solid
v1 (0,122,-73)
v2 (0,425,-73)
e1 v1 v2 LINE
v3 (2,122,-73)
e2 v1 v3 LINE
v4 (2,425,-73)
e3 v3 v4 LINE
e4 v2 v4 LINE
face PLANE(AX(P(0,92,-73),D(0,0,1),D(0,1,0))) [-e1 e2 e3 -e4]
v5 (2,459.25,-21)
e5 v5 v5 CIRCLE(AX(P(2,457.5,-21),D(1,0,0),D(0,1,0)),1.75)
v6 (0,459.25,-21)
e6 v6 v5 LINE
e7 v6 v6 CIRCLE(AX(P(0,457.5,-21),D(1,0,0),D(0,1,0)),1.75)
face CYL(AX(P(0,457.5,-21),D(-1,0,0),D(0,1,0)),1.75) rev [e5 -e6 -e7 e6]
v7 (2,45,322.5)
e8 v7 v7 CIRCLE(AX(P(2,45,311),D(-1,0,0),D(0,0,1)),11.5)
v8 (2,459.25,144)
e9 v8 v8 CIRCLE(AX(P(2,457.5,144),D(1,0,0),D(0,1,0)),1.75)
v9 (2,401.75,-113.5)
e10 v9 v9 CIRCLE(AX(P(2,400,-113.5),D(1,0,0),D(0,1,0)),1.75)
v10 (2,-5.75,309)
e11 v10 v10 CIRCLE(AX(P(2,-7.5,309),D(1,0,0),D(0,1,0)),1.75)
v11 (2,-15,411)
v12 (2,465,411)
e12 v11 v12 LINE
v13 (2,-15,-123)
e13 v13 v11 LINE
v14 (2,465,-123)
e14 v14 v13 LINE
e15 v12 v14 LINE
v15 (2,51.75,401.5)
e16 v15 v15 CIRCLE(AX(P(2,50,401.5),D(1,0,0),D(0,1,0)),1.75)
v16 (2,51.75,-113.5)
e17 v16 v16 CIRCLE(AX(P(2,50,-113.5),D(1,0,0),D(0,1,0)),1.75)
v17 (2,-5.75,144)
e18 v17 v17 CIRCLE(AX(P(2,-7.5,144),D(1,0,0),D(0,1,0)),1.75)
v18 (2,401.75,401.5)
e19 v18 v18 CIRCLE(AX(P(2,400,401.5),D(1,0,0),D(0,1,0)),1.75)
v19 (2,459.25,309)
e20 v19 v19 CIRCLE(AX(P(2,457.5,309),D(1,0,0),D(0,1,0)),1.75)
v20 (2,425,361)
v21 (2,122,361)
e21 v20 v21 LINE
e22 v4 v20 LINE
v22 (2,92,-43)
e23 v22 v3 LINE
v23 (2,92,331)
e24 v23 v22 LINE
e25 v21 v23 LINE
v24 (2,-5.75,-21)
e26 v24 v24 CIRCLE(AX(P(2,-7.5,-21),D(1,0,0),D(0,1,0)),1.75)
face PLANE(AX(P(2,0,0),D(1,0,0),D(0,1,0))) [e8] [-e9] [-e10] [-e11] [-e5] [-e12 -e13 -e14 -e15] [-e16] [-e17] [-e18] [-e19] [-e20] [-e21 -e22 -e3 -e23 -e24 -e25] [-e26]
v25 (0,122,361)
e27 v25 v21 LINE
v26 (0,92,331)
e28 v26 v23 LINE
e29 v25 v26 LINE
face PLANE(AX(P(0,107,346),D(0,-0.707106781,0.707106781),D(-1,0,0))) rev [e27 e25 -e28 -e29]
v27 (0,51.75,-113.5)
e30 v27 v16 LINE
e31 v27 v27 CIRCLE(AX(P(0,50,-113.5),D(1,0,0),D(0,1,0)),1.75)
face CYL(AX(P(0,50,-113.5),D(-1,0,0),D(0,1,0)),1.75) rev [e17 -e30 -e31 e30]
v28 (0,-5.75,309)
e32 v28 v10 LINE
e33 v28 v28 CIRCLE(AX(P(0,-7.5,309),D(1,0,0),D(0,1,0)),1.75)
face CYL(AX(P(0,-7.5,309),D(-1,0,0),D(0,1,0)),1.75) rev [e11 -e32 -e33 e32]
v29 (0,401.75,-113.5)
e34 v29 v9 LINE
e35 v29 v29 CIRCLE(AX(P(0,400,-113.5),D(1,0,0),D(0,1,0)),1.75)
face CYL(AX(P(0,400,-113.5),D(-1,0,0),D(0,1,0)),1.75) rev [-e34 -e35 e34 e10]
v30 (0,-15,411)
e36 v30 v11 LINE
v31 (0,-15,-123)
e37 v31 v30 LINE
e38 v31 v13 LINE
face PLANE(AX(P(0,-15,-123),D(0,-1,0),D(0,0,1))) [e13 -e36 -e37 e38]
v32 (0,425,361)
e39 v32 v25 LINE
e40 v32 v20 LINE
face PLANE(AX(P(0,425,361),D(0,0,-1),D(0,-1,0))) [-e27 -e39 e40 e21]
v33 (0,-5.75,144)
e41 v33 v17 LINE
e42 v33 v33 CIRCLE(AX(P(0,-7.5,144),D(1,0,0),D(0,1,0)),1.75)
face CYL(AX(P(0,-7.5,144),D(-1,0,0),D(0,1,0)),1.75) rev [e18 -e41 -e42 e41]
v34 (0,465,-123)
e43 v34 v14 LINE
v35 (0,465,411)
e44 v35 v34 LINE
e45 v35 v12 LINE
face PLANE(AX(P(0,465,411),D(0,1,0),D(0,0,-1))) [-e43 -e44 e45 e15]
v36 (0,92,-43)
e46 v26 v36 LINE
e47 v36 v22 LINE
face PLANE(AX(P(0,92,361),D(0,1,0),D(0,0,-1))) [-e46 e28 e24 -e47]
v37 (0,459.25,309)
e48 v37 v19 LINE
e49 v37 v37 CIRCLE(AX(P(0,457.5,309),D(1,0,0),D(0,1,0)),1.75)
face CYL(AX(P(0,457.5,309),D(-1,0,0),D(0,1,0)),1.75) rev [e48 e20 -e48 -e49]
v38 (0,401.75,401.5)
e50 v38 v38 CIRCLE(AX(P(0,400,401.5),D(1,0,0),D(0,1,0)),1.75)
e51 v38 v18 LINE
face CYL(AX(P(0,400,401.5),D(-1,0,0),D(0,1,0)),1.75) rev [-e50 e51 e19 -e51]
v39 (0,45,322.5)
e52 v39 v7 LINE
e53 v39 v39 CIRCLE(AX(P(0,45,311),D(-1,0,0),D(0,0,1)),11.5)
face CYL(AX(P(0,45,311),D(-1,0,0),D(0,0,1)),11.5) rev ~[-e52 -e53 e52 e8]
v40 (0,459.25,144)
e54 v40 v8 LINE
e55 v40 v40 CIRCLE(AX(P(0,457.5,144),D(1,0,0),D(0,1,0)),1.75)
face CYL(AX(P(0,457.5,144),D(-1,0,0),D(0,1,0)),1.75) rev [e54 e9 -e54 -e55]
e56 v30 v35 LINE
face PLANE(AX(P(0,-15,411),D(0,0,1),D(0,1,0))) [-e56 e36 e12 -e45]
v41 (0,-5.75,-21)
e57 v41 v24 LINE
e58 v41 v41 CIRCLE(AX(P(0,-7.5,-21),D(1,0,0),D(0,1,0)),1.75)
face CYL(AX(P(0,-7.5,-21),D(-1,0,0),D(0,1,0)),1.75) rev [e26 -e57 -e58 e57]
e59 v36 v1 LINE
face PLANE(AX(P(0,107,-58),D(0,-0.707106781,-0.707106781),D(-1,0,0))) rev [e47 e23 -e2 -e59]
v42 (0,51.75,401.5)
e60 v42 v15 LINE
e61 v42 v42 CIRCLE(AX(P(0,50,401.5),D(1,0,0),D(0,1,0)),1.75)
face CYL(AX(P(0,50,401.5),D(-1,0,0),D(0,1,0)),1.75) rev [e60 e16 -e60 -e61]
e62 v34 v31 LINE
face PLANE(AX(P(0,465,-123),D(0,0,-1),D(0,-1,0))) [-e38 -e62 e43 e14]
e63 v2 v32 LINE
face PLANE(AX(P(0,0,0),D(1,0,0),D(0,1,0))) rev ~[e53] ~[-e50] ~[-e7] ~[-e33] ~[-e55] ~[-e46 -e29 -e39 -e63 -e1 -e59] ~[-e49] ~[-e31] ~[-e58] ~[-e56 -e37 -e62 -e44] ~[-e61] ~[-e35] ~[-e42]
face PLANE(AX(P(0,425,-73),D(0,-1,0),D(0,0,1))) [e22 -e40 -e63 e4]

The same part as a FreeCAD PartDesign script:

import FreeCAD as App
import Part
import Sketcher

V = App.Vector
Q = App.Units.Quantity


def edges_at(feature, points):
    """Names of the edges that pass closest to the given points."""
    edges = feature.Shape.Edges
    near = lambda p: min(range(len(edges)), key=lambda i: edges[i].distToShape(Part.Vertex(*p))[0])
    return sorted({f"Edge{near(p) + 1}" for p in points})

doc = App.newDocument("Part")
body = doc.addObject("PartDesign::Body", "Body")

# Sketch on YZ plane
sketch1 = body.newObject("Sketcher::SketchObject", "Sketch")
sketch1.AttachmentSupport = (doc.getObject("YZ_Plane"), [""])
sketch1.MapMode = "FlatFace"
sketch1.addGeometry([
    Part.LineSegment(V(465, -123, 0), V(465, 411, 0)),  # 0
    Part.LineSegment(V(465, 411, 0), V(-15, 411, 0)),  # 1
    Part.LineSegment(V(-15, 411, 0), V(-15, -123, 0)),  # 2
    Part.LineSegment(V(-15, -123, 0), V(465, -123, 0)),  # 3
    Part.Circle(V(50, -113.5, 0), V(0, 0, 1), 1.75),  # 4
    Part.Circle(V(-7.5, -21, 0), V(0, 0, 1), 1.75),  # 5
    Part.Circle(V(400, -113.5, 0), V(0, 0, 1), 1.75),  # 6
    Part.Circle(V(457.5, -21, 0), V(0, 0, 1), 1.75),  # 7
    Part.Circle(V(-7.5, 144, 0), V(0, 0, 1), 1.75),  # 8
    Part.Circle(V(-7.5, 309, 0), V(0, 0, 1), 1.75),  # 9
    Part.Circle(V(50, 401.5, 0), V(0, 0, 1), 1.75),  # 10
    Part.Circle(V(457.5, 144, 0), V(0, 0, 1), 1.75),  # 11
    Part.Circle(V(457.5, 309, 0), V(0, 0, 1), 1.75),  # 12
    Part.Circle(V(400, 401.5, 0), V(0, 0, 1), 1.75),  # 13
], False)
sketch1.addConstraint([
    Sketcher.Constraint("Coincident", 0, 2, 1, 1),
    Sketcher.Constraint("Coincident", 1, 2, 2, 1),
    Sketcher.Constraint("Coincident", 2, 2, 3, 1),
    Sketcher.Constraint("Coincident", 3, 2, 0, 1),
    Sketcher.Constraint("Vertical", 0),
    Sketcher.Constraint("Horizontal", 1),
    Sketcher.Constraint("Vertical", 2),
    Sketcher.Constraint("Horizontal", 3),
    Sketcher.Constraint("Equal", 4, 5),
    Sketcher.Constraint("Equal", 5, 6),
    Sketcher.Constraint("Equal", 6, 7),
    Sketcher.Constraint("Equal", 7, 8),
    Sketcher.Constraint("Equal", 8, 9),
    Sketcher.Constraint("Equal", 9, 10),
    Sketcher.Constraint("Equal", 10, 11),
    Sketcher.Constraint("Equal", 11, 12),
    Sketcher.Constraint("Equal", 12, 13),
    Sketcher.Constraint("Horizontal", 4, 3, 6, 3),
    Sketcher.Constraint("Horizontal", 5, 3, 7, 3),
    Sketcher.Constraint("Horizontal", 8, 3, 11, 3),
    Sketcher.Constraint("Horizontal", 9, 3, 12, 3),
    Sketcher.Constraint("Horizontal", 10, 3, 13, 3),
    Sketcher.Constraint("Vertical", 5, 3, 8, 3),
    Sketcher.Constraint("Vertical", 8, 3, 9, 3),
    Sketcher.Constraint("Vertical", 4, 3, 10, 3),
    Sketcher.Constraint("Vertical", 7, 3, 11, 3),
    Sketcher.Constraint("Vertical", 11, 3, 12, 3),
    Sketcher.Constraint("Vertical", 6, 3, 13, 3),
    Sketcher.Constraint("Diameter", 4, Q("3.5 mm")),
    Sketcher.Constraint("DistanceX", 1, 2, 1, 1, Q("480 mm")),
    Sketcher.Constraint("DistanceY", 0, 1, 0, 2, Q("534 mm")),
    Sketcher.Constraint("DistanceX", -1, 1, 4, 3, Q("50 mm")),
    Sketcher.Constraint("DistanceY", 5, 3, -1, 1, Q("21 mm")),
    Sketcher.Constraint("DistanceX", -1, 1, 6, 3, Q("400 mm")),
    Sketcher.Constraint("DistanceY", -1, 1, 8, 3, Q("144 mm")),
    Sketcher.Constraint("DistanceY", -1, 1, 9, 3, Q("309 mm")),
    Sketcher.Constraint("DistanceX", -1, 1, 0, 2, Q("465 mm")),
    Sketcher.Constraint("DistanceY", -1, 1, 0, 2, Q("411 mm")),
    Sketcher.Constraint("DistanceX", 5, 3, 7, 3, Q("465 mm")),
    Sketcher.Constraint("DistanceY", 4, 3, 10, 3, Q("515 mm")),
    Sketcher.Constraint("DistanceY", 4, 3, -1, 1, Q("113.5 mm")),
    Sketcher.Constraint("DistanceX", 5, 3, -1, 1, Q("7.5 mm")),
])
pad1 = body.newObject("PartDesign::Pad", "Pad")
pad1.Profile = sketch1
pad1.Length = 2

# Sketch on YZ plane
sketch2 = body.newObject("Sketcher::SketchObject", "Sketch001")
sketch2.AttachmentSupport = (doc.getObject("YZ_Plane"), [""])
sketch2.MapMode = "FlatFace"
sketch2.addGeometry([
    Part.LineSegment(V(425, 361, 0), V(425, -73, 0)),
    Part.LineSegment(V(425, -73, 0), V(92, -73, 0)),
    Part.LineSegment(V(92, -73, 0), V(92, 361, 0)),
    Part.LineSegment(V(92, 361, 0), V(425, 361, 0)),
], False)
sketch2.addConstraint([
    Sketcher.Constraint("Coincident", 0, 2, 1, 1),
    Sketcher.Constraint("Coincident", 1, 2, 2, 1),
    Sketcher.Constraint("Coincident", 2, 2, 3, 1),
    Sketcher.Constraint("Coincident", 3, 2, 0, 1),
    Sketcher.Constraint("Vertical", 0),
    Sketcher.Constraint("Horizontal", 1),
    Sketcher.Constraint("Vertical", 2),
    Sketcher.Constraint("Horizontal", 3),
    Sketcher.Constraint("DistanceX", 1, 2, 1, 1, Q("333 mm")),
    Sketcher.Constraint("DistanceY", 0, 2, 0, 1, Q("434 mm")),
    Sketcher.Constraint("DistanceX", -1, 1, 0, 2, Q("425 mm")),
    Sketcher.Constraint("DistanceY", 0, 2, -1, 1, Q("73 mm")),
])
pocket1 = body.newObject("PartDesign::Pocket", "Pocket")
pocket1.Profile = sketch2
pocket1.Length = 2
pocket1.Reversed = True
doc.recompute()

chamfer = body.newObject("PartDesign::Chamfer", "Chamfer")
chamfer.Base = (pocket1, edges_at(pocket1, [(1, 92, -73), (1, 92, 361)]))
chamfer.Size = 30

# Sketch on YZ plane
sketch3 = body.newObject("Sketcher::SketchObject", "Sketch002")
sketch3.AttachmentSupport = (doc.getObject("YZ_Plane"), [""])
sketch3.MapMode = "FlatFace"
sketch3.addGeometry(Part.Circle(V(45, 311, 0), V(0, 0, 1), 11.5), False)
sketch3.addConstraint([
    Sketcher.Constraint("Diameter", 0, Q("23 mm")),
    Sketcher.Constraint("DistanceX", -1, 1, 0, 3, Q("45 mm")),
    Sketcher.Constraint("DistanceY", -1, 1, 0, 3, Q("311 mm")),
])
pocket2 = body.newObject("PartDesign::Pocket", "Pocket001")
pocket2.Profile = sketch3
pocket2.Type = "ThroughAll"
pocket2.Reversed = True

doc.recompute()
